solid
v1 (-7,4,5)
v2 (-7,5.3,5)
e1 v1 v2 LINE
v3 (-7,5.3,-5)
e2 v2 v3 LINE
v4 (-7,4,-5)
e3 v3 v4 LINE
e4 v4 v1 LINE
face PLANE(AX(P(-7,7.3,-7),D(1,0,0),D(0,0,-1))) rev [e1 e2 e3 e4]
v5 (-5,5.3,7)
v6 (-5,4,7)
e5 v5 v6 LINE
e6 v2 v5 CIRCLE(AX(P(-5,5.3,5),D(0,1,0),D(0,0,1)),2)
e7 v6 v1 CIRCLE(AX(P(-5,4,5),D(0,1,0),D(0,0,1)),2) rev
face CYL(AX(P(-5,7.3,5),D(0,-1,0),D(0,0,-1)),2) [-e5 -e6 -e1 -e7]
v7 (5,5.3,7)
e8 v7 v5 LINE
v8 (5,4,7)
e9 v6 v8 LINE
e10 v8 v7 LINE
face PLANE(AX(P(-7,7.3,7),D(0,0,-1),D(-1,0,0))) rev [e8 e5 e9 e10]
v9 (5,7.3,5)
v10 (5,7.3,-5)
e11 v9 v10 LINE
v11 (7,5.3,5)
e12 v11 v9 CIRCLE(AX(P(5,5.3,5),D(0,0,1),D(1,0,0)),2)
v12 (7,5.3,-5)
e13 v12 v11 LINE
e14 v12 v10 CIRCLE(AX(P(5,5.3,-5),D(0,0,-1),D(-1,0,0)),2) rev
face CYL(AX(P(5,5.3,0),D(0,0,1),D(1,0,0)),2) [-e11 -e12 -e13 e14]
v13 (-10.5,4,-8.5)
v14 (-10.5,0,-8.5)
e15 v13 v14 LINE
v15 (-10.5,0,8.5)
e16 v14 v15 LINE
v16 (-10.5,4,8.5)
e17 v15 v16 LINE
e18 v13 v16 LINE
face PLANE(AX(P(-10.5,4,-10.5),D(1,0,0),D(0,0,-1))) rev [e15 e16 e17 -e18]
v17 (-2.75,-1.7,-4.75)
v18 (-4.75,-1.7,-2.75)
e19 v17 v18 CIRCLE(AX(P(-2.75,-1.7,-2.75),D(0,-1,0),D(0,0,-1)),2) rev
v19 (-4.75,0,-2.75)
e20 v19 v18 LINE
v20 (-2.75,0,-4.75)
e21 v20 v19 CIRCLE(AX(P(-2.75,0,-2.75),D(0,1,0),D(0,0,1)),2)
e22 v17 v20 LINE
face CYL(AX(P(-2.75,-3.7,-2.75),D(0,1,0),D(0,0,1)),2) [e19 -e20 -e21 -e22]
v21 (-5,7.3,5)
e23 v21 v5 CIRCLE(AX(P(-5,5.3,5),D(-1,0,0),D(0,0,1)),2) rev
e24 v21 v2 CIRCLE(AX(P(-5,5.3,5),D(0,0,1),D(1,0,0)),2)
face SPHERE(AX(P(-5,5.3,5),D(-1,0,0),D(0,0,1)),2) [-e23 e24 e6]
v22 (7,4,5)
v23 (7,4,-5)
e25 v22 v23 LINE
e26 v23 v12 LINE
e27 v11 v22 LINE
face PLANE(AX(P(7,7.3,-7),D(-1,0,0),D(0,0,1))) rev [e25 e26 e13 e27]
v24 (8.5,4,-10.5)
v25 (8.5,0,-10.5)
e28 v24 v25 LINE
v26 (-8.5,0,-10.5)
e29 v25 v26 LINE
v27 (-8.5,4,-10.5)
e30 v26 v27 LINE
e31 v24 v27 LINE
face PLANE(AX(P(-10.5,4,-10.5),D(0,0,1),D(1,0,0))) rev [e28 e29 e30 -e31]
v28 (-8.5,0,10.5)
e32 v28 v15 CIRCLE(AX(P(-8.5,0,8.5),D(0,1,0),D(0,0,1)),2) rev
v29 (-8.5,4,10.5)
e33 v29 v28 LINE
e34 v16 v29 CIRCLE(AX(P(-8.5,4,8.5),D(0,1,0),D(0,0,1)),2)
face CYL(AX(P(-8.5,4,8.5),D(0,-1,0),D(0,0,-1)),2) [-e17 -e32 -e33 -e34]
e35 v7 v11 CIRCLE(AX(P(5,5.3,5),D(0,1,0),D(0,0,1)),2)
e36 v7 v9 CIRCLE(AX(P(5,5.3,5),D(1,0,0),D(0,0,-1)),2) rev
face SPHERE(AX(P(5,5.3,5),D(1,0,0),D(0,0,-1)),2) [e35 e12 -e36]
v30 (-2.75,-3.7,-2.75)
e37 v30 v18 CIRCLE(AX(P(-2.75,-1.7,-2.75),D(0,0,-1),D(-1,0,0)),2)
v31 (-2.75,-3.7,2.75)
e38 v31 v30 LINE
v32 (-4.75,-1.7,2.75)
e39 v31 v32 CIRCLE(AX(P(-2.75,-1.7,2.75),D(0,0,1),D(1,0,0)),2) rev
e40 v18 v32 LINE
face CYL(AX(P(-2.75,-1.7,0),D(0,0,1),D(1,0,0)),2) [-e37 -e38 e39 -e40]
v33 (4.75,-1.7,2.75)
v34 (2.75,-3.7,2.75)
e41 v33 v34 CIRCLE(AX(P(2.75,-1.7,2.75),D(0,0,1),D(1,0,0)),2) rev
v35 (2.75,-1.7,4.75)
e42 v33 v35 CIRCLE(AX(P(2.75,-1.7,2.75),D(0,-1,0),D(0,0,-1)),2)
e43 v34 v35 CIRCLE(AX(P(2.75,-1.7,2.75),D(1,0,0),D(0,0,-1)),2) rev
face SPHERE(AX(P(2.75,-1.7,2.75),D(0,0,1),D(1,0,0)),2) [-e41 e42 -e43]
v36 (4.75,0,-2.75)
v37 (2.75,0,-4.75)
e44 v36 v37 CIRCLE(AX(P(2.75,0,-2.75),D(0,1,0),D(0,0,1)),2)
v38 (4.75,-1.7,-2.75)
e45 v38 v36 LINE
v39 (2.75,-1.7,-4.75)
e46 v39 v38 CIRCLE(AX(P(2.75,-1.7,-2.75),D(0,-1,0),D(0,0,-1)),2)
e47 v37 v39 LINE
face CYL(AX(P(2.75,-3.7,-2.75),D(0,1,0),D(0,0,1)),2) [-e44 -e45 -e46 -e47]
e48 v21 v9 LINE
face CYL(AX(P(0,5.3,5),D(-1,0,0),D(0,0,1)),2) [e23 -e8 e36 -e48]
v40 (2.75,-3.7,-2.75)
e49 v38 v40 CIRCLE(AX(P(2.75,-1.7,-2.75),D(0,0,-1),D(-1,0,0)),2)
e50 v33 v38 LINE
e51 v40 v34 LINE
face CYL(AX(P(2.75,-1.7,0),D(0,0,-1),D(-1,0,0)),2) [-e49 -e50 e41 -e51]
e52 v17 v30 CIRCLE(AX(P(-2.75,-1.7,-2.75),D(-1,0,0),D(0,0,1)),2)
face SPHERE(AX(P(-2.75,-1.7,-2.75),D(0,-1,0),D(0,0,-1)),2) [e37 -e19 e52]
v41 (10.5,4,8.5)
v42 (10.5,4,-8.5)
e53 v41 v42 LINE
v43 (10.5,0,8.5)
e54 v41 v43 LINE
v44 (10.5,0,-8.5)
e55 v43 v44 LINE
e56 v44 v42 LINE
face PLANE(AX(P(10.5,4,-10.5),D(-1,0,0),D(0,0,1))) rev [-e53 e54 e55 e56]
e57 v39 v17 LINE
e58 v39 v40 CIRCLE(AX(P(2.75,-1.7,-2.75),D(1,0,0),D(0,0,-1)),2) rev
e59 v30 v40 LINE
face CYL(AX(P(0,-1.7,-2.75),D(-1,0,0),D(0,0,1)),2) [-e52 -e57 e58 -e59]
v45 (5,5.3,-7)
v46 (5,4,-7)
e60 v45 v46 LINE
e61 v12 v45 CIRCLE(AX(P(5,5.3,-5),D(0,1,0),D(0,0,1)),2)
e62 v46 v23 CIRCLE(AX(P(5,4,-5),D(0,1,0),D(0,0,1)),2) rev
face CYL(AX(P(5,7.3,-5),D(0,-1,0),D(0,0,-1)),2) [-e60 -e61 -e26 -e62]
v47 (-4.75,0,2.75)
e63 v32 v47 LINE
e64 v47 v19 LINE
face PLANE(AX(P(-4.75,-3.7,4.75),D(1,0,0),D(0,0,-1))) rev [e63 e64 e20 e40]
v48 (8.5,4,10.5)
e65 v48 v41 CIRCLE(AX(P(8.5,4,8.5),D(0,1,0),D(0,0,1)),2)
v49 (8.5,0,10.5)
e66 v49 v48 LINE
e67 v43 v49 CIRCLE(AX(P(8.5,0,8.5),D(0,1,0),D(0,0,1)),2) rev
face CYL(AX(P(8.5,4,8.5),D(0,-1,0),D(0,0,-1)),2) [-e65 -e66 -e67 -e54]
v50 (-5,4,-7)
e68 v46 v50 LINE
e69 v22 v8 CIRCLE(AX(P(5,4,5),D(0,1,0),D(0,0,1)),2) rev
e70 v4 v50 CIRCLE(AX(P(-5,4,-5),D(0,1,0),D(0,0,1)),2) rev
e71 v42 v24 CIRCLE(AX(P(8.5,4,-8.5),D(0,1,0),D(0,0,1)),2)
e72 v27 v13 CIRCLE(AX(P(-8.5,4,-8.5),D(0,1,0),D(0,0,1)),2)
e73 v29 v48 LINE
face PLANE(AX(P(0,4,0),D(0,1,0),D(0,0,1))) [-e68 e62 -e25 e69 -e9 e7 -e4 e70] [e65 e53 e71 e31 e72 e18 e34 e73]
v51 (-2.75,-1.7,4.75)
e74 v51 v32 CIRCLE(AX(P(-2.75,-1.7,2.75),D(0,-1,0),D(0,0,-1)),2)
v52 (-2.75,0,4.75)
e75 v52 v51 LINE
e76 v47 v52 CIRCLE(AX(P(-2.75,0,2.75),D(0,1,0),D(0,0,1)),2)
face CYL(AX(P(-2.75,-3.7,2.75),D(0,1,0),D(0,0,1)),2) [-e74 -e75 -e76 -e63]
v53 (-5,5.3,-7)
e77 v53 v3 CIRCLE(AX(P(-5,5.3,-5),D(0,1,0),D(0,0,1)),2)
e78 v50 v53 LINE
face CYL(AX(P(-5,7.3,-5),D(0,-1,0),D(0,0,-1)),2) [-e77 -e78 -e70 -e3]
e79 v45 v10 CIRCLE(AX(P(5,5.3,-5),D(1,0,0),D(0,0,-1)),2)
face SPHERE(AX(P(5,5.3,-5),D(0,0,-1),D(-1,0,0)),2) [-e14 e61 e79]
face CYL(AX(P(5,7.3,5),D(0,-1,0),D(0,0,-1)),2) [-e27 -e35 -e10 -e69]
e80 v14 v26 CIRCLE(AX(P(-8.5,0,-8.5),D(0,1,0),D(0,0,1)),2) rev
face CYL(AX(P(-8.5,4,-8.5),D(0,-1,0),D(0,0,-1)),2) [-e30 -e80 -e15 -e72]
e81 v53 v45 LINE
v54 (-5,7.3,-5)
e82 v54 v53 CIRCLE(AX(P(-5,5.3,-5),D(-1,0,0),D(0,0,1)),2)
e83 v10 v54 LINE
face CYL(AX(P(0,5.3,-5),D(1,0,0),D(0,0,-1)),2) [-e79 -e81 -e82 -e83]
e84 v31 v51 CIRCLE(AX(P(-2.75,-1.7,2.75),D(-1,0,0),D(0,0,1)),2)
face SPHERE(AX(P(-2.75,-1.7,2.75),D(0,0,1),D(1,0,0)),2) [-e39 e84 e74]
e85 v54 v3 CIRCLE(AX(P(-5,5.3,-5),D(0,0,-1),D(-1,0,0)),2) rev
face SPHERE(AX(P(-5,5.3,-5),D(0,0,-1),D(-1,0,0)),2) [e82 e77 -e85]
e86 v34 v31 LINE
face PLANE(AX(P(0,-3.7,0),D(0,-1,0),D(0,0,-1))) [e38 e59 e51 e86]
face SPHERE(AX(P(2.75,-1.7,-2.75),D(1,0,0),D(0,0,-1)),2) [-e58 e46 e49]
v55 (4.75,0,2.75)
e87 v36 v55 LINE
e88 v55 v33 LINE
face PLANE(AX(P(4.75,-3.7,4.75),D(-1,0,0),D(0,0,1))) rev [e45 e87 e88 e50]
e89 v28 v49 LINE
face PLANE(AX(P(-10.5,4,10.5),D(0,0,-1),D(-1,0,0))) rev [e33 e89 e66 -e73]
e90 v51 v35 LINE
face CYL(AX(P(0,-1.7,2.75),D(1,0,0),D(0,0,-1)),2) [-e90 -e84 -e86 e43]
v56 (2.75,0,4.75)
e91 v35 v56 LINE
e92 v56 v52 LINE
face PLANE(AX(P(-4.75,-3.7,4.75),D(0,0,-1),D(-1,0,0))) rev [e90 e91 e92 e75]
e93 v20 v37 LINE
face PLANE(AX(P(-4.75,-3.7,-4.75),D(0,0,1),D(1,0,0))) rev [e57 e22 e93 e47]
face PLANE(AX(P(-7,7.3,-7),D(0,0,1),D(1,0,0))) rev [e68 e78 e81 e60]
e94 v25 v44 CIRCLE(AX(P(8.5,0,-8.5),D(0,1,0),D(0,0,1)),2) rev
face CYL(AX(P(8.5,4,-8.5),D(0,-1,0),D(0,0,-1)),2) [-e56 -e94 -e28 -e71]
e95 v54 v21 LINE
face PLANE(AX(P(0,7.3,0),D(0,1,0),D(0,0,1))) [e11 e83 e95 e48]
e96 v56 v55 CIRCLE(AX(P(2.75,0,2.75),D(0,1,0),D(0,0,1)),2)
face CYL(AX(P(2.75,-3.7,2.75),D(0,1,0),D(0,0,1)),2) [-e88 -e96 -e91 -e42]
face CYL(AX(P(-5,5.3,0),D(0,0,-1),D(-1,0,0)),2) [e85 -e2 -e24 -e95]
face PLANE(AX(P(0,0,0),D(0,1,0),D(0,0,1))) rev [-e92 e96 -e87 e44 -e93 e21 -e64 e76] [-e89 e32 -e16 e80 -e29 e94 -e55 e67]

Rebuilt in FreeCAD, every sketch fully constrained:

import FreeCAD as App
import Part
import Sketcher
from FreeCAD import Vector


def edges_at(feature, points):
    """Names of the edges that pass closest to the given points."""
    edges = feature.Shape.Edges
    near = lambda p: min(range(len(edges)), key=lambda i: edges[i].distToShape(Part.Vertex(*p))[0])
    return sorted({f"Edge{near(p) + 1}" for p in points})

doc = App.newDocument("Part")
body = doc.addObject("PartDesign::Body", "Body")

# Sketch on XZ plane
sketch1 = doc.addObject("Sketcher::SketchObject", "Sketch")
body.addObject(sketch1)
sketch1.AttachmentSupport = (doc.XZ_Plane, [""])
sketch1.MapMode = "FlatFace"
sketch1.addGeometry(Part.LineSegment(Vector(-10, -10, 0), Vector(-10, 10, 0)), False)
sketch1.addGeometry(Part.LineSegment(Vector(-10, 10, 0), Vector(10, 10, 0)), False)
sketch1.addGeometry(Part.LineSegment(Vector(10, 10, 0), Vector(10, -10, 0)), False)
sketch1.addGeometry(Part.LineSegment(Vector(10, -10, 0), Vector(-10, -10, 0)), False)
sketch1.addConstraint(Sketcher.Constraint("Coincident", 0, 2, 1, 1))
sketch1.addConstraint(Sketcher.Constraint("Coincident", 1, 2, 2, 1))
sketch1.addConstraint(Sketcher.Constraint("Coincident", 2, 2, 3, 1))
sketch1.addConstraint(Sketcher.Constraint("Coincident", 3, 2, 0, 1))
sketch1.addConstraint(Sketcher.Constraint("Vertical", 0))
sketch1.addConstraint(Sketcher.Constraint("Horizontal", 1))
sketch1.addConstraint(Sketcher.Constraint("Vertical", 2))
sketch1.addConstraint(Sketcher.Constraint("Horizontal", 3))
sketch1.addConstraint(Sketcher.Constraint("Symmetric", 0, 2, 2, 2, -1, 1))
sketch1.addConstraint(Sketcher.Constraint("Equal", 3, 0))
sketch1.addConstraint(Sketcher.Constraint("DistanceX", 1, 1, 1, 2, 21.0))
pad1 = doc.addObject("PartDesign::Pad", "Pad")
body.addObject(pad1)
pad1.Profile = sketch1
pad1.Length = 4
pad1.Reversed = True

# Sketch on XZ plane
sketch2 = doc.addObject("Sketcher::SketchObject", "Sketch001")
body.addObject(sketch2)
sketch2.AttachmentSupport = (doc.XZ_Plane, [""])
sketch2.MapMode = "FlatFace"
sketch2.addGeometry(Part.LineSegment(Vector(-5, 5, 0), Vector(-5, -5, 0)), False)
sketch2.addGeometry(Part.LineSegment(Vector(-5, -5, 0), Vector(5, -5, 0)), False)
sketch2.addGeometry(Part.LineSegment(Vector(5, -5, 0), Vector(5, 5, 0)), False)
sketch2.addGeometry(Part.LineSegment(Vector(5, 5, 0), Vector(-5, 5, 0)), False)
sketch2.addConstraint(Sketcher.Constraint("Coincident", 0, 2, 1, 1))
sketch2.addConstraint(Sketcher.Constraint("Coincident", 1, 2, 2, 1))
sketch2.addConstraint(Sketcher.Constraint("Coincident", 2, 2, 3, 1))
sketch2.addConstraint(Sketcher.Constraint("Coincident", 3, 2, 0, 1))
sketch2.addConstraint(Sketcher.Constraint("Vertical", 0))
sketch2.addConstraint(Sketcher.Constraint("Horizontal", 1))
sketch2.addConstraint(Sketcher.Constraint("Vertical", 2))
sketch2.addConstraint(Sketcher.Constraint("Horizontal", 3))
sketch2.addConstraint(Sketcher.Constraint("Symmetric", 0, 2, 2, 2, -1, 1))
sketch2.addConstraint(Sketcher.Constraint("Equal", 3, 0))
sketch2.addConstraint(Sketcher.Constraint("DistanceX", 1, 1, 1, 2, 9.5))
pad2 = doc.addObject("PartDesign::Pad", "Pad001")
body.addObject(pad2)
pad2.Profile = sketch2
pad2.Length = 3.7

# Sketch on XZ plane
sketch3 = doc.addObject("Sketcher::SketchObject", "Sketch002")
body.addObject(sketch3)
sketch3.AttachmentSupport = (doc.XZ_Plane, [""])
sketch3.MapMode = "FlatFace"
sketch3.AttachmentOffset = App.Placement(Vector(0, 0, -4), App.Rotation())
sketch3.addGeometry(Part.LineSegment(Vector(-7, -7, 0), Vector(-7, 7, 0)), False)
sketch3.addGeometry(Part.LineSegment(Vector(-7, 7, 0), Vector(7, 7, 0)), False)
sketch3.addGeometry(Part.LineSegment(Vector(7, 7, 0), Vector(7, -7, 0)), False)
sketch3.addGeometry(Part.LineSegment(Vector(7, -7, 0), Vector(-7, -7, 0)), False)
sketch3.addConstraint(Sketcher.Constraint("Coincident", 0, 2, 1, 1))
sketch3.addConstraint(Sketcher.Constraint("Coincident", 1, 2, 2, 1))
sketch3.addConstraint(Sketcher.Constraint("Coincident", 2, 2, 3, 1))
sketch3.addConstraint(Sketcher.Constraint("Coincident", 3, 2, 0, 1))
sketch3.addConstraint(Sketcher.Constraint("Vertical", 0))
sketch3.addConstraint(Sketcher.Constraint("Horizontal", 1))
sketch3.addConstraint(Sketcher.Constraint("Vertical", 2))
sketch3.addConstraint(Sketcher.Constraint("Horizontal", 3))
sketch3.addConstraint(Sketcher.Constraint("Symmetric", 0, 2, 2, 2, -1, 1))
sketch3.addConstraint(Sketcher.Constraint("Equal", 3, 0))
sketch3.addConstraint(Sketcher.Constraint("DistanceX", 1, 1, 1, 2, 14.0))
pad3 = doc.addObject("PartDesign::Pad", "Pad002")
body.addObject(pad3)
pad3.Profile = sketch3
pad3.Length = 3.3
pad3.Reversed = True
doc.recompute()

fillet = doc.addObject("PartDesign::Fillet", "Fillet")
body.addObject(fillet)
fillet.Base = (pad3, edges_at(pad3, [
    (10.5, 2, 10.5),
    (-10.5, 2, 10.5),
    (-10.5, 2, -10.5),
    (10.5, 2, -10.5),
]))
fillet.Radius = 2
doc.recompute()

fillet2 = doc.addObject("PartDesign::Fillet", "Fillet001")
body.addObject(fillet2)
fillet2.Base = (fillet, edges_at(fillet, [
    (7, 5.65, 7),
    (7, 5.65, -7),
    (-7, 5.65, -7),
    (-7, 5.65, 7),
    (7, 7.3, 0),
    (0, 7.3, -7),
    (-7, 7.3, 0),
    (0, 7.3, 7),
]))
fillet2.Radius = 2
doc.recompute()

fillet3 = doc.addObject("PartDesign::Fillet", "Fillet002")
body.addObject(fillet3)
fillet3.Base = (fillet2, edges_at(fillet2, [
    (4.75, -1.85, -4.75),
    (4.75, -1.85, 4.75),
    (-4.75, -1.85, 4.75),
    (-4.75, -1.85, -4.75),
    (4.75, -3.7, 0),
    (0, -3.7, 4.75),
    (-4.75, -3.7, 0),
    (0, -3.7, -4.75),
]))
fillet3.Radius = 2

doc.recompute()
